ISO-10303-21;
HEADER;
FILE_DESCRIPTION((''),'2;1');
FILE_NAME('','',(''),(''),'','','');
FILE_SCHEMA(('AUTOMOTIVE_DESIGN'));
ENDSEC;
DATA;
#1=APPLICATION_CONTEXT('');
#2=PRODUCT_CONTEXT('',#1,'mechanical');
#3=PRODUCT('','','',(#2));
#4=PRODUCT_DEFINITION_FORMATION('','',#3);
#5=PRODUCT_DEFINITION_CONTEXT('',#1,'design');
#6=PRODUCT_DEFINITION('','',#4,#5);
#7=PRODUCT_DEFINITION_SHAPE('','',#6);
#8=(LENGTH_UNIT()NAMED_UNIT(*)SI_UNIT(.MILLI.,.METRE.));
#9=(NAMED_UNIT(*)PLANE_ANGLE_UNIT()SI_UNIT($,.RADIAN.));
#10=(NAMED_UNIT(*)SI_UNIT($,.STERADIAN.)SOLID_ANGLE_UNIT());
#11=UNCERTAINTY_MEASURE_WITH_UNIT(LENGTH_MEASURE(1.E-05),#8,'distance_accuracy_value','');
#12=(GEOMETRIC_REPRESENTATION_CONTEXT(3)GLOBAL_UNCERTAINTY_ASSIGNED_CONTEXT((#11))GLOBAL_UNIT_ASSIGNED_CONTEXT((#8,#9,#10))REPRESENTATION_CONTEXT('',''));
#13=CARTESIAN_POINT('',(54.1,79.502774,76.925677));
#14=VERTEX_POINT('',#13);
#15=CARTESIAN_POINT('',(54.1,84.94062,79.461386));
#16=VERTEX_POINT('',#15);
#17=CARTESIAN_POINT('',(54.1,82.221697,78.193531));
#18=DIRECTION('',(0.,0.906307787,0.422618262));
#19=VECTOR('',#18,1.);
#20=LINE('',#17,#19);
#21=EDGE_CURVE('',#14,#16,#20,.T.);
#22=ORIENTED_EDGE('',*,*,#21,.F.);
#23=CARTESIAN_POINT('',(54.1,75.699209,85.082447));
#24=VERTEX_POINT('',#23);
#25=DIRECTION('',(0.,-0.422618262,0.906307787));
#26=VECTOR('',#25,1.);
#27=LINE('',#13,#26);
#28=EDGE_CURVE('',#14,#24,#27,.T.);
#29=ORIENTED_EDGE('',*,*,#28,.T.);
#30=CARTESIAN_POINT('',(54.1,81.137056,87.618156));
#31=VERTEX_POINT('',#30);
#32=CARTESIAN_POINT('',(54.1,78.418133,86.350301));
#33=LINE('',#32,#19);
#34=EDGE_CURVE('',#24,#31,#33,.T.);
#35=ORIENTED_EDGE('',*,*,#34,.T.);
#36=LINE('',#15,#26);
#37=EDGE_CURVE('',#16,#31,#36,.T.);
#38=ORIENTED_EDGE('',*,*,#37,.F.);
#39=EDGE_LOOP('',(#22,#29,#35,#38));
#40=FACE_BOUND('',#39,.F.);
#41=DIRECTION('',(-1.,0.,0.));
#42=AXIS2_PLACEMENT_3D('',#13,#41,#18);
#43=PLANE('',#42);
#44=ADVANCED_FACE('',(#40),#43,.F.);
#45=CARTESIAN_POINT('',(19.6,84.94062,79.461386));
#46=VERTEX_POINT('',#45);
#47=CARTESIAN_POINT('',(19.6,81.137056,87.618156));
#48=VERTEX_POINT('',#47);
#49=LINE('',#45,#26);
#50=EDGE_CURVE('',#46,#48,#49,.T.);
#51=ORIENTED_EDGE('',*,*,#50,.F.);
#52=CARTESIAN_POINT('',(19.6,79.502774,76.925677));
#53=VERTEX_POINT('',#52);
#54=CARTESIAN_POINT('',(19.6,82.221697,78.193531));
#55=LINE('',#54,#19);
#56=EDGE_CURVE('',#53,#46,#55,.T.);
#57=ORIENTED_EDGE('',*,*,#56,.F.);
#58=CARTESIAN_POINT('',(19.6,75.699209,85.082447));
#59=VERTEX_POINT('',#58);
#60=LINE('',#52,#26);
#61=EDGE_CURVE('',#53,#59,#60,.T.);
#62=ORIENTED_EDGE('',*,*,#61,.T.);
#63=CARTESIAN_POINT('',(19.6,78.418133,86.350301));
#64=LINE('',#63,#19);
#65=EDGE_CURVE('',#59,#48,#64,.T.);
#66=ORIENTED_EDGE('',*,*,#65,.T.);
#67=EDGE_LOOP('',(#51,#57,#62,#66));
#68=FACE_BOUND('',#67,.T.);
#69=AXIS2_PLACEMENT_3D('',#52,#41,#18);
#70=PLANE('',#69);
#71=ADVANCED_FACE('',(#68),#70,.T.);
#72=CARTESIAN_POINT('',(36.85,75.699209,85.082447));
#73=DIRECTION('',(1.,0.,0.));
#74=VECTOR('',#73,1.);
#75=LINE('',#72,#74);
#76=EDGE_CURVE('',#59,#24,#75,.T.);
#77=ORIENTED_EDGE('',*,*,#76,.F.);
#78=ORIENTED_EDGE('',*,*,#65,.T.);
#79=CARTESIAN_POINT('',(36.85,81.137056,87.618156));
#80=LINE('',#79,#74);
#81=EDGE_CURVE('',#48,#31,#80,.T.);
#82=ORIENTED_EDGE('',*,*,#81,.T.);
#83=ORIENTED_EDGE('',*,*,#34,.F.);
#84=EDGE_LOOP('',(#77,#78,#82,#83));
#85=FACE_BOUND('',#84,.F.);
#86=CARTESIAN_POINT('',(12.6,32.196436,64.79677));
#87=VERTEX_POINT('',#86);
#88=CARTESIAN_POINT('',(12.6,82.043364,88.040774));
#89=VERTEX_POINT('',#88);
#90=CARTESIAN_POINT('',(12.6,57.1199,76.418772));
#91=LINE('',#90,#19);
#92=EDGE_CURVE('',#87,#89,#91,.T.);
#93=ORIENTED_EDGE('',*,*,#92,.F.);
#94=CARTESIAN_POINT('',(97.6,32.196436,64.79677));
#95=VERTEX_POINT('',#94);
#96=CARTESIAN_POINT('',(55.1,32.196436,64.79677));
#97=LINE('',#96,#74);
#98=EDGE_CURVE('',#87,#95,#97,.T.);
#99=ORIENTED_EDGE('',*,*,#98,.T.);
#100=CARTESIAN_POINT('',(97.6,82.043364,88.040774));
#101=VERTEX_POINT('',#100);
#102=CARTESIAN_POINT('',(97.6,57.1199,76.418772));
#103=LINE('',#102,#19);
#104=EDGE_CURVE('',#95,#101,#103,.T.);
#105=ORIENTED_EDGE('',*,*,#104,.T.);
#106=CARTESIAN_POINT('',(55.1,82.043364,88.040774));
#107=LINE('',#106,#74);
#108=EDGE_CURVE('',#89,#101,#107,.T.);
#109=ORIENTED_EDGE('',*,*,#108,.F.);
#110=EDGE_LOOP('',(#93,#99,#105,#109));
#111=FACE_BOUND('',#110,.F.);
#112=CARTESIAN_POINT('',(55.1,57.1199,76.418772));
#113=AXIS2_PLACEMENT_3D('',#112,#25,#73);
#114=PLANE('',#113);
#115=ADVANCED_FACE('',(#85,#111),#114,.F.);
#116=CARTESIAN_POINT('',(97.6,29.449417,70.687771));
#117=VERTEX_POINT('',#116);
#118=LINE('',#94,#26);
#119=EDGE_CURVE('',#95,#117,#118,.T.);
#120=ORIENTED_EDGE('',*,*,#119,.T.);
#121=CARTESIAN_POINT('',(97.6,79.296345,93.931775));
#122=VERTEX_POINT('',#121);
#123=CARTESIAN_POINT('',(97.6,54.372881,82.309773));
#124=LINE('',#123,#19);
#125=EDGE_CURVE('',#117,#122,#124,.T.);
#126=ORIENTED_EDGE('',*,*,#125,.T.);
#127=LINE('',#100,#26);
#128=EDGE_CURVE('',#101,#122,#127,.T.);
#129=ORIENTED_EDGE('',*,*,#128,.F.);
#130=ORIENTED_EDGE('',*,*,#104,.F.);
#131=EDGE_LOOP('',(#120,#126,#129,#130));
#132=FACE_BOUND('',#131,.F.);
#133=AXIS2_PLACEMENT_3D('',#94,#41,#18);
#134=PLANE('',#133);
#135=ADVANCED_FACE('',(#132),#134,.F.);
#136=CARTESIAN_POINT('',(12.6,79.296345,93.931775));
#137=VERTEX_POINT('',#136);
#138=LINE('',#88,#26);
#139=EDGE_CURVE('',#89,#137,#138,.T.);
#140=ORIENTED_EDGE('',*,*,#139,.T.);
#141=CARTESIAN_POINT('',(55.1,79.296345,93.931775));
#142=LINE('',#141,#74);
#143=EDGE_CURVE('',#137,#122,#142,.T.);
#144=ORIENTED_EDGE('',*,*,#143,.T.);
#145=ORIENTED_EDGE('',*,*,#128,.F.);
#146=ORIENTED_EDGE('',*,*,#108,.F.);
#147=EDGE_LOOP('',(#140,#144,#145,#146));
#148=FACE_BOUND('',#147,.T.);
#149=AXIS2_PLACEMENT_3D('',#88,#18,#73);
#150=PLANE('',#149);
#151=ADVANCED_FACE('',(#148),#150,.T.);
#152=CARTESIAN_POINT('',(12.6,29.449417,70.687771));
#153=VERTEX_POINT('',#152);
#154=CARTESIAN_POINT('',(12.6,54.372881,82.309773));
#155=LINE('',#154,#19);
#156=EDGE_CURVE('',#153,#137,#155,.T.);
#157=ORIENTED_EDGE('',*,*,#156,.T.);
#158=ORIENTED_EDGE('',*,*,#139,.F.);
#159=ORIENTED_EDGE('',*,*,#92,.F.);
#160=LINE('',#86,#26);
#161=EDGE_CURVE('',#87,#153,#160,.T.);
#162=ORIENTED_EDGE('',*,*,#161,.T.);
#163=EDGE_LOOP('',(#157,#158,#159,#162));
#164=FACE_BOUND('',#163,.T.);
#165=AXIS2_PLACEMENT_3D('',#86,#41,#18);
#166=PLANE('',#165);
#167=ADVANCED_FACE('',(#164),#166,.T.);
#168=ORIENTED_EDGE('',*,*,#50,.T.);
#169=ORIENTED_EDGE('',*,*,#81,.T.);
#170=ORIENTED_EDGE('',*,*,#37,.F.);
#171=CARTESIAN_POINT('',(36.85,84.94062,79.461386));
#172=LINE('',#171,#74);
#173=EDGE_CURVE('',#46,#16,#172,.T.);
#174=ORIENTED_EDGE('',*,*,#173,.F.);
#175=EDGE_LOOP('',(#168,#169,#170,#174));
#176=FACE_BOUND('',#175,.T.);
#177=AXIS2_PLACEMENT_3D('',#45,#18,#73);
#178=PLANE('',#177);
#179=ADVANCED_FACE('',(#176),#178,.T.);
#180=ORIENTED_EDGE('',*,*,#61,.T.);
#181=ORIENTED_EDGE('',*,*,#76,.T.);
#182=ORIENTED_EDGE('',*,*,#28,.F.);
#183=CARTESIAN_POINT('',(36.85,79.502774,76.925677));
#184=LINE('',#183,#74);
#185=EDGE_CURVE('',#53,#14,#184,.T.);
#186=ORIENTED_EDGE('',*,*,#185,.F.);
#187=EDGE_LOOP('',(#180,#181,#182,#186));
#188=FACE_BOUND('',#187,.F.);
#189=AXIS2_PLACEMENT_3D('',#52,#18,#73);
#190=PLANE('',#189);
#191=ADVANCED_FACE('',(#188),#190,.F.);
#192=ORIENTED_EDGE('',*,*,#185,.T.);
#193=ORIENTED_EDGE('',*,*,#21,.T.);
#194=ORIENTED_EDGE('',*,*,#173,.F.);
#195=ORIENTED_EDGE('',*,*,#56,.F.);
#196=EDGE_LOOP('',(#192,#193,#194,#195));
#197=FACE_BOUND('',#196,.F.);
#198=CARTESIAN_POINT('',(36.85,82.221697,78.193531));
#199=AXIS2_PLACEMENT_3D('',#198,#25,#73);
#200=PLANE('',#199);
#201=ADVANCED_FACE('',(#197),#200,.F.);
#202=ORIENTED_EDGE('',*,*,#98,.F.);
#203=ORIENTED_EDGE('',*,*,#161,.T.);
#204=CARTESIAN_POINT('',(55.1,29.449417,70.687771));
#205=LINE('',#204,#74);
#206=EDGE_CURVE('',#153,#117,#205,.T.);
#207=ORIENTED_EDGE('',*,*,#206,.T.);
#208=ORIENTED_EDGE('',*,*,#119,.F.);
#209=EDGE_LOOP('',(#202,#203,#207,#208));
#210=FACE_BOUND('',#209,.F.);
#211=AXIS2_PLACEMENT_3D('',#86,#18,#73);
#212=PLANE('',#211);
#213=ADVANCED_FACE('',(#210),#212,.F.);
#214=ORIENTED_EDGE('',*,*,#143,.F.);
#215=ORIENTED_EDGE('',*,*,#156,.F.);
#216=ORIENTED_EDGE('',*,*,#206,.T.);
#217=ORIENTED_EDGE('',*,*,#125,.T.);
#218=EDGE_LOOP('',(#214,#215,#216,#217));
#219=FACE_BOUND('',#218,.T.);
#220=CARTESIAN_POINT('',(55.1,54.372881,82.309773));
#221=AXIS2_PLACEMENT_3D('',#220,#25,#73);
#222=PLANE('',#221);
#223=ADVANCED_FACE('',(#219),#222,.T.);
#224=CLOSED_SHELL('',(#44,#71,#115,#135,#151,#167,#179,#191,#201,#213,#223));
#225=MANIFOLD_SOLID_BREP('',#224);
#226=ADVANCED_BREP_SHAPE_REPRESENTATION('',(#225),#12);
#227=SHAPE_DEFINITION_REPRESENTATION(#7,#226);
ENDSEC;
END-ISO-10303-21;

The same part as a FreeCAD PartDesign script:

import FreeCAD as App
import Part
import Sketcher
from FreeCAD import Vector

doc = App.newDocument("Part")
params = doc.addObject("Spreadsheet::Sheet", "Params")
for row, (alias, value) in enumerate([
    ("sketch1_height", "6 mm"),
    ("sketch1_width", "34.5 mm"),
    ("pad1_length", "9 mm"),
    ("sketch2_width", "85 mm"),
    ("sketch2_height", "55 mm"),
    ("pad2_length", "6.5 mm"),
], start=1):
    params.set(f"A{row}", alias)
    params.set(f"B{row}", "=" + value)
    params.setAlias(f"B{row}", alias)

body = doc.addObject("PartDesign::Body", "Body")

sketch1 = body.newObject("Sketcher::SketchObject", "Sketch")
sketch1.AttachmentSupport = (doc.getObject("XY_Plane"), [""])
sketch1.MapMode = "FlatFace"
sketch1.addGeometry(Part.LineSegment(Vector(7, 54, 0), Vector(7, 48, 0)), False)
sketch1.addGeometry(Part.LineSegment(Vector(7, 48, 0), Vector(42, 48, 0)), False)
sketch1.addGeometry(Part.LineSegment(Vector(42, 48, 0), Vector(42, 54, 0)), False)
sketch1.addGeometry(Part.LineSegment(Vector(42, 54, 0), Vector(7, 54, 0)), False)
sketch1.addConstraint(Sketcher.Constraint("Coincident", 0, 2, 1, 1))
sketch1.addConstraint(Sketcher.Constraint("Coincident", 1, 2, 2, 1))
sketch1.addConstraint(Sketcher.Constraint("Coincident", 2, 2, 3, 1))
sketch1.addConstraint(Sketcher.Constraint("Coincident", 3, 2, 0, 1))
sketch1.addConstraint(Sketcher.Constraint("Vertical", 0))
sketch1.addConstraint(Sketcher.Constraint("Horizontal", 1))
sketch1.addConstraint(Sketcher.Constraint("Vertical", 2))
sketch1.addConstraint(Sketcher.Constraint("Horizontal", 3))
sketch1.addConstraint(Sketcher.Constraint("DistanceY", 0, 2, 0, 1, 6.0))
sketch1.addConstraint(Sketcher.Constraint("DistanceX", 1, 1, 1, 2, 34.5))
sketch1.addConstraint(Sketcher.Constraint("DistanceX", -1, 1, 0, 2, 7.0))
sketch1.addConstraint(Sketcher.Constraint("DistanceY", -1, 1, 0, 2, 48.0))
sketch1.setExpression("Constraints[8]", "Params.sketch1_height")
sketch1.setExpression("Constraints[9]", "Params.sketch1_width")
pad1 = body.newObject("PartDesign::Pad", "Pad")
pad1.Profile = sketch1
pad1.setExpression("Length", "Params.pad1_length")
body2 = doc.addObject("PartDesign::Body", "Body001")

sketch2 = body2.newObject("Sketcher::SketchObject", "Sketch001")
sketch2.AttachmentSupport = (doc.getObject("XY_Plane001"), [""])
sketch2.MapMode = "FlatFace"
sketch2.AttachmentOffset = App.Placement(Vector(0, 0, 9), App.Rotation())
sketch2.addGeometry(Part.LineSegment(Vector(0, 55, 0), Vector(0, 0, 0)), False)
sketch2.addGeometry(Part.LineSegment(Vector(0, 0, 0), Vector(85, 0, 0)), False)
sketch2.addGeometry(Part.LineSegment(Vector(85, 0, 0), Vector(85, 55, 0)), False)
sketch2.addGeometry(Part.LineSegment(Vector(85, 55, 0), Vector(0, 55, 0)), False)
sketch2.addConstraint(Sketcher.Constraint("Coincident", 0, 2, 1, 1))
sketch2.addConstraint(Sketcher.Constraint("Coincident", 1, 2, 2, 1))
sketch2.addConstraint(Sketcher.Constraint("Coincident", 2, 2, 3, 1))
sketch2.addConstraint(Sketcher.Constraint("Coincident", 3, 2, 0, 1))
sketch2.addConstraint(Sketcher.Constraint("Vertical", 0))
sketch2.addConstraint(Sketcher.Constraint("Horizontal", 1))
sketch2.addConstraint(Sketcher.Constraint("Vertical", 2))
sketch2.addConstraint(Sketcher.Constraint("Horizontal", 3))
sketch2.addConstraint(Sketcher.Constraint("Coincident", 0, 2, -1, 1))
sketch2.addConstraint(Sketcher.Constraint("DistanceX", 1, 1, 1, 2, 85.0))
sketch2.addConstraint(Sketcher.Constraint("DistanceY", 0, 2, 0, 1, 55.0))
sketch2.setExpression("Constraints[9]", "Params.sketch2_width")
sketch2.setExpression("Constraints[10]", "Params.sketch2_height")
pad2 = body2.newObject("PartDesign::Pad", "Pad001")
pad2.Profile = sketch2
pad2.setExpression("Length", "Params.pad2_length")
doc.recompute()

boolean = body2.newObject("PartDesign::Boolean", "Boolean")
boolean.Type = "Fuse"
boolean.addObjects([body])
body3 = doc.addObject("PartDesign::Body", "Body002")
doc.recompute()

body2.Placement = App.Placement(Vector(12.6, 36, 56.64), App.Rotation(Vector(1, 0, 0), 25))
boolean2 = body3.newObject("PartDesign::Boolean", "Boolean001")
boolean2.Type = "Fuse"
boolean2.addObjects([body2])

doc.recompute()
